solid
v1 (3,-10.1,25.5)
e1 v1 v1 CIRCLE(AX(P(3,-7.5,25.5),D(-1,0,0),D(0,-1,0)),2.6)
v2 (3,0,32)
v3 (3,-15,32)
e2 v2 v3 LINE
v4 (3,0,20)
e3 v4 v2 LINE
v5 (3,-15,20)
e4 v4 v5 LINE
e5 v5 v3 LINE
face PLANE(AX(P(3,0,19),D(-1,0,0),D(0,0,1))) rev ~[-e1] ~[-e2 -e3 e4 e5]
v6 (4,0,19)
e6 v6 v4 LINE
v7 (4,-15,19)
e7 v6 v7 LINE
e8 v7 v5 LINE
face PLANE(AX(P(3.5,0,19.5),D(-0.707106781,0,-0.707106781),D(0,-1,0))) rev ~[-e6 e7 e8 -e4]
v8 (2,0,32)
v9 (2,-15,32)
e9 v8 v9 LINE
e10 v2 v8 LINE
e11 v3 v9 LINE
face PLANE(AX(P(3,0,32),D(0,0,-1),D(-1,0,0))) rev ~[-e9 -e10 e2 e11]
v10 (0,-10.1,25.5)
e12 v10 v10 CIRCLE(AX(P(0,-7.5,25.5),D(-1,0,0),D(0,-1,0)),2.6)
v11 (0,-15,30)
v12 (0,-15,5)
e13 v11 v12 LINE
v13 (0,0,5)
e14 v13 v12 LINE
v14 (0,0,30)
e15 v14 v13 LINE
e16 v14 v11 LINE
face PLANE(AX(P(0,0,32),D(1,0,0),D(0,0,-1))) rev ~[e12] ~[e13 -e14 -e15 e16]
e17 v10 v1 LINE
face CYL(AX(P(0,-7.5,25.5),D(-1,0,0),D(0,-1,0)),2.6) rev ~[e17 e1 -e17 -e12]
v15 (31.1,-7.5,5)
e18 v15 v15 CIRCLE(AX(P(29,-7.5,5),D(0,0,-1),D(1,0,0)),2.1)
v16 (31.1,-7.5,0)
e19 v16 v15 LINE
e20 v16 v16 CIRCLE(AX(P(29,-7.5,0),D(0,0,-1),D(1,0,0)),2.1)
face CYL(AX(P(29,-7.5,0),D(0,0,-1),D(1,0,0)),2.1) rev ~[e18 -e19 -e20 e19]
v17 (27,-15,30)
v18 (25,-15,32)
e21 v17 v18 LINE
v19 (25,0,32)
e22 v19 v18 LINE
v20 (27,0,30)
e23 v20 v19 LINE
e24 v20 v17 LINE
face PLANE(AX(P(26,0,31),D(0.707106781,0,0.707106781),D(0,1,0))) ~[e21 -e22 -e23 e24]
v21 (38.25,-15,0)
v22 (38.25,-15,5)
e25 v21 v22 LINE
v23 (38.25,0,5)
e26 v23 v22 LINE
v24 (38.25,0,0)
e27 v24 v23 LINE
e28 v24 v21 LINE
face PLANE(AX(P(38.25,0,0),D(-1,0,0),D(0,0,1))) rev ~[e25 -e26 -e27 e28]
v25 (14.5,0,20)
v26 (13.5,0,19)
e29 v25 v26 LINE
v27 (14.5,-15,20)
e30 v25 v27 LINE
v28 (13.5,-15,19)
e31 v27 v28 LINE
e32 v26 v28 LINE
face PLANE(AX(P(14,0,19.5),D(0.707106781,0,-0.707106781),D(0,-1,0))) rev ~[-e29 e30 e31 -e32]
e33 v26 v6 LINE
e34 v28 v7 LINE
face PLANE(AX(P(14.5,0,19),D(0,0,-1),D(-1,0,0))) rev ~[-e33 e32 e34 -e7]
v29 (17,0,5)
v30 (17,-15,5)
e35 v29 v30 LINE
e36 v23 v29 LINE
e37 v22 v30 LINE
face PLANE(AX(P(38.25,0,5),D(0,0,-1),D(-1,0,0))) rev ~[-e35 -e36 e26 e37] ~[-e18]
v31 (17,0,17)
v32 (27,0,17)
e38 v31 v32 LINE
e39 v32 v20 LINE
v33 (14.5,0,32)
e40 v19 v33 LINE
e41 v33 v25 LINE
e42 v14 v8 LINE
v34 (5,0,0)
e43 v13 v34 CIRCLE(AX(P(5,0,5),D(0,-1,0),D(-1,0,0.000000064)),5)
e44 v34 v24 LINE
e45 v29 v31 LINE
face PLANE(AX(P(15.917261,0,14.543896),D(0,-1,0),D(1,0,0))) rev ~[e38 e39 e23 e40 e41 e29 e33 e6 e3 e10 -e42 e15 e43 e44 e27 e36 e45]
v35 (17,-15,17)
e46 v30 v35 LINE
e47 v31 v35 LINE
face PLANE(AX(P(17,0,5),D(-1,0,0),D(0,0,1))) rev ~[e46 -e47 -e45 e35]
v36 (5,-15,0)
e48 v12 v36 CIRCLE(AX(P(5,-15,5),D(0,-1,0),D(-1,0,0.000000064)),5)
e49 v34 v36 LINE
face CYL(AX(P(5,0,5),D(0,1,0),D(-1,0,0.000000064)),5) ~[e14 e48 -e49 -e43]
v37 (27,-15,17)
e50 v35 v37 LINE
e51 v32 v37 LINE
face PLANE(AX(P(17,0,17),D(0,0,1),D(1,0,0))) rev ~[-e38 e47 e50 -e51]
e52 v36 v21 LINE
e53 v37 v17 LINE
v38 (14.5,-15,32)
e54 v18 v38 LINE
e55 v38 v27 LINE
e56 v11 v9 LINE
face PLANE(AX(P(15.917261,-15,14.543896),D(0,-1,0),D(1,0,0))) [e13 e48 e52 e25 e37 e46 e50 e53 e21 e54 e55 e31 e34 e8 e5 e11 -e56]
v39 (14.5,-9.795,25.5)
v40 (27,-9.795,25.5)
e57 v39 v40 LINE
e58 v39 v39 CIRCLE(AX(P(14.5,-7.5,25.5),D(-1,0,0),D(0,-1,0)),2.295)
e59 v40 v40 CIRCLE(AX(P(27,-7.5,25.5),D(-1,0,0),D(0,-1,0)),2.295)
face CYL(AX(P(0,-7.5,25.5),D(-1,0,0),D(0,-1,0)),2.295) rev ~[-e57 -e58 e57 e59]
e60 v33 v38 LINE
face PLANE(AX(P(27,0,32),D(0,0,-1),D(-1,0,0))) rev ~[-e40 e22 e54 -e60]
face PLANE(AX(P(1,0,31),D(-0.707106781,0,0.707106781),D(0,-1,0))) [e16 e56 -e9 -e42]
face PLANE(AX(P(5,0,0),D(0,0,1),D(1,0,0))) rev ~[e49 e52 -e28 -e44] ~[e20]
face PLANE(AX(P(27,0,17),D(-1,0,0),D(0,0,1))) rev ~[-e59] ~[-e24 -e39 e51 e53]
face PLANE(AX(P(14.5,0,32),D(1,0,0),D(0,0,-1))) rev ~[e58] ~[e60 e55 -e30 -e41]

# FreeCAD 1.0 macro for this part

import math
import FreeCAD as App
import Part
import Sketcher

V = App.Vector


def edges_at(feature, points):
    """Names of the edges that pass closest to the given points."""
    edges = feature.Shape.Edges
    near = lambda p: min(range(len(edges)), key=lambda i: edges[i].distToShape(Part.Vertex(*p))[0])
    return sorted({f"Edge{near(p) + 1}" for p in points})

doc = App.newDocument("Part")
params = doc.addObject("Spreadsheet::Sheet", "Params")
for row, (alias, value) in enumerate([
    ("sketch1_radius", "5 mm"),
    ("sketch1_width", "10 mm"),
    ("sketch1_width2", "3 mm"),
    ("sketch1_height", "12 mm"),
    ("sketch1_height2", "15 mm"),
    ("pad1_length", "15 mm"),
    ("sketch2_diameter", "4.2 mm"),
    ("pocket1_length", "5 mm"),
    ("sketch3_diameter", "4.59 mm"),
    ("sketch4_diameter", "5.2 mm"),
    ("sketch4_diameter2", "4.59 mm"),
    ("pocket3_length", "3 mm"),
    ("chamfer_size", "2 mm"),
    ("chamfer2_size", "1 mm"),
], start=1):
    params.set(f"A{row}", alias)
    params.set(f"B{row}", "=" + value)
    params.setAlias(f"B{row}", alias)

body = doc.addObject("PartDesign::Body", "Body")

# Sketch on XZ plane
sketch1 = body.newObject("Sketcher::SketchObject", "Sketch")
sketch1.AttachmentSupport = (doc.getObject("XZ_Plane"), [""])
sketch1.MapMode = "FlatFace"
sketch1.addGeometry([
    Part.ArcOfCircle(Part.Circle(V(5, 5, 0), V(0, 0, 1), 5), math.radians(179.999996), math.radians(270.000004)),  # 0
    Part.LineSegment(V(5, 0, 0), V(38.25, 0, 0)),  # 1
    Part.LineSegment(V(38.25, 0, 0), V(38.25, 5, 0)),  # 2
    Part.LineSegment(V(38.25, 5, 0), V(17, 5, 0)),  # 3
    Part.LineSegment(V(17, 5, 0), V(17, 17, 0)),  # 4
    Part.LineSegment(V(17, 17, 0), V(27, 17, 0)),  # 5
    Part.LineSegment(V(27, 17, 0), V(27, 32, 0)),  # 6
    Part.LineSegment(V(27, 32, 0), V(14.5, 32, 0)),  # 7
    Part.LineSegment(V(14.5, 32, 0), V(14.5, 19, 0)),  # 8
    Part.LineSegment(V(14.5, 19, 0), V(3, 19, 0)),  # 9
    Part.LineSegment(V(3, 19, 0), V(3, 32, 0)),  # 10
    Part.LineSegment(V(3, 32, 0), V(0, 32, 0)),  # 11
    Part.LineSegment(V(0, 32, 0), V(0, 5, 0)),  # 12
], False)
sketch1.addConstraint([
    Sketcher.Constraint("Tangent", 0, 2, 1, 1),
    Sketcher.Constraint("Coincident", 1, 2, 2, 1),
    Sketcher.Constraint("Coincident", 2, 2, 3, 1),
    Sketcher.Constraint("Coincident", 3, 2, 4, 1),
    Sketcher.Constraint("Coincident", 4, 2, 5, 1),
    Sketcher.Constraint("Coincident", 5, 2, 6, 1),
    Sketcher.Constraint("Coincident", 6, 2, 7, 1),
    Sketcher.Constraint("Coincident", 7, 2, 8, 1),
    Sketcher.Constraint("Coincident", 8, 2, 9, 1),
    Sketcher.Constraint("Coincident", 9, 2, 10, 1),
    Sketcher.Constraint("Coincident", 10, 2, 11, 1),
    Sketcher.Constraint("Coincident", 11, 2, 12, 1),
    Sketcher.Constraint("Tangent", 12, 2, 0, 1),
    Sketcher.Constraint("Horizontal", 1),
    Sketcher.Constraint("Vertical", 2),
    Sketcher.Constraint("Horizontal", 3),
    Sketcher.Constraint("Vertical", 4),
    Sketcher.Constraint("Horizontal", 5),
    Sketcher.Constraint("Vertical", 6),
    Sketcher.Constraint("Horizontal", 7),
    Sketcher.Constraint("Vertical", 8),
    Sketcher.Constraint("Horizontal", 9),
    Sketcher.Constraint("Vertical", 10),
    Sketcher.Constraint("Horizontal", 11),
    Sketcher.Constraint("Vertical", 12),
    Sketcher.Constraint("PointOnObject", 0, 2, -1),
    Sketcher.Constraint("PointOnObject", 11, 2, -2),
    Sketcher.Constraint("Horizontal", 0, 3, 2, 2),
    Sketcher.Constraint("Horizontal", 7, 2, 10, 2),
    Sketcher.Constraint("Radius", 0, 5.0),
    Sketcher.Constraint("DistanceX", 5, 1, 5, 2, 10.0),
    Sketcher.Constraint("DistanceX", 11, 2, 11, 1, 3.0),
    Sketcher.Constraint("DistanceY", 4, 1, 4, 2, 12.0),
    Sketcher.Constraint("DistanceY", 6, 1, 6, 2, 15.0),
    Sketcher.Constraint("DistanceY", 8, 2, 8, 1, 13.0),
    Sketcher.Constraint("DistanceX", 7, 2, 7, 1, 12.5),
    Sketcher.Constraint("DistanceX", 9, 2, 9, 1, 11.5),
    Sketcher.Constraint("DistanceX", 1, 1, 1, 2, 33.25),
])
sketch1.setExpression("Constraints[29]", "Params.sketch1_radius")
sketch1.setExpression("Constraints[30]", "Params.sketch1_width")
sketch1.setExpression("Constraints[31]", "Params.sketch1_width2")
sketch1.setExpression("Constraints[32]", "Params.sketch1_height")
sketch1.setExpression("Constraints[33]", "Params.sketch1_height2")
pad1 = body.newObject("PartDesign::Pad", "Pad")
pad1.Profile = sketch1
pad1.setExpression("Length", "Params.pad1_length")

# Sketch on XY plane
sketch2 = body.newObject("Sketcher::SketchObject", "Sketch001")
sketch2.AttachmentSupport = (doc.getObject("XY_Plane"), [""])
sketch2.MapMode = "FlatFace"
sketch2.addGeometry(Part.Circle(V(29, -7.5, 0), V(0, 0, 1), 2.1), False)
sketch2.addConstraint([
    Sketcher.Constraint("Diameter", 0, 4.2),
    Sketcher.Constraint("DistanceX", -1, 1, 0, 3, 29.0),
    Sketcher.Constraint("DistanceY", 0, 3, -1, 1, 7.5),
])
sketch2.setExpression("Constraints[0]", "Params.sketch2_diameter")
pocket1 = body.newObject("PartDesign::Pocket", "Pocket")
pocket1.Profile = sketch2
pocket1.setExpression("Length", "Params.pocket1_length")
pocket1.Reversed = True

# Sketch on YZ plane
sketch3 = body.newObject("Sketcher::SketchObject", "Sketch002")
sketch3.AttachmentSupport = (doc.getObject("YZ_Plane"), [""])
sketch3.MapMode = "FlatFace"
sketch3.addGeometry(Part.Circle(V(-7.5, 25.5, 0), V(0, 0, 1), 2.295), False)
sketch3.addConstraint([
    Sketcher.Constraint("Diameter", 0, 4.59),
    Sketcher.Constraint("DistanceX", 0, 3, -1, 1, 7.5),
    Sketcher.Constraint("DistanceY", -1, 1, 0, 3, 25.5),
])
sketch3.setExpression("Constraints[0]", "Params.sketch3_diameter")
pocket2 = body.newObject("PartDesign::Pocket", "Pocket001")
pocket2.Profile = sketch3
pocket2.Type = "ThroughAll"
pocket2.Reversed = True

# Sketch on YZ plane
sketch4 = body.newObject("Sketcher::SketchObject", "Sketch003")
sketch4.AttachmentSupport = (doc.getObject("YZ_Plane"), [""])
sketch4.MapMode = "FlatFace"
sketch4.addGeometry([
    Part.Circle(V(-7.5, 25.5, 0), V(0, 0, 1), 2.6),
    Part.Circle(V(-7.5, 25.5, 0), V(0, 0, 1), 2.295),
], False)
sketch4.addConstraint([
    Sketcher.Constraint("Coincident", 1, 3, 0, 3),
    Sketcher.Constraint("Diameter", 0, 5.2),
    Sketcher.Constraint("Diameter", 1, 4.59),
    Sketcher.Constraint("DistanceX", 0, 3, -1, 1, 7.5),
    Sketcher.Constraint("DistanceY", -1, 1, 0, 3, 25.5),
])
sketch4.setExpression("Constraints[1]", "Params.sketch4_diameter")
sketch4.setExpression("Constraints[2]", "Params.sketch4_diameter2")
pocket3 = body.newObject("PartDesign::Pocket", "Pocket002")
pocket3.Profile = sketch4
pocket3.setExpression("Length", "Params.pocket3_length")
pocket3.Reversed = True
doc.recompute()

chamfer = body.newObject("PartDesign::Chamfer", "Chamfer")
chamfer.Base = (pocket3, edges_at(pocket3, [(27, -7.5, 32), (0, -7.5, 32)]))
chamfer.setExpression("Size", "Params.chamfer_size")
doc.recompute()

chamfer2 = body.newObject("PartDesign::Chamfer", "Chamfer001")
chamfer2.Base = (chamfer, edges_at(chamfer, [(3, -7.5, 19), (14.5, -7.5, 19)]))
chamfer2.setExpression("Size", "Params.chamfer2_size")

doc.recompute()
